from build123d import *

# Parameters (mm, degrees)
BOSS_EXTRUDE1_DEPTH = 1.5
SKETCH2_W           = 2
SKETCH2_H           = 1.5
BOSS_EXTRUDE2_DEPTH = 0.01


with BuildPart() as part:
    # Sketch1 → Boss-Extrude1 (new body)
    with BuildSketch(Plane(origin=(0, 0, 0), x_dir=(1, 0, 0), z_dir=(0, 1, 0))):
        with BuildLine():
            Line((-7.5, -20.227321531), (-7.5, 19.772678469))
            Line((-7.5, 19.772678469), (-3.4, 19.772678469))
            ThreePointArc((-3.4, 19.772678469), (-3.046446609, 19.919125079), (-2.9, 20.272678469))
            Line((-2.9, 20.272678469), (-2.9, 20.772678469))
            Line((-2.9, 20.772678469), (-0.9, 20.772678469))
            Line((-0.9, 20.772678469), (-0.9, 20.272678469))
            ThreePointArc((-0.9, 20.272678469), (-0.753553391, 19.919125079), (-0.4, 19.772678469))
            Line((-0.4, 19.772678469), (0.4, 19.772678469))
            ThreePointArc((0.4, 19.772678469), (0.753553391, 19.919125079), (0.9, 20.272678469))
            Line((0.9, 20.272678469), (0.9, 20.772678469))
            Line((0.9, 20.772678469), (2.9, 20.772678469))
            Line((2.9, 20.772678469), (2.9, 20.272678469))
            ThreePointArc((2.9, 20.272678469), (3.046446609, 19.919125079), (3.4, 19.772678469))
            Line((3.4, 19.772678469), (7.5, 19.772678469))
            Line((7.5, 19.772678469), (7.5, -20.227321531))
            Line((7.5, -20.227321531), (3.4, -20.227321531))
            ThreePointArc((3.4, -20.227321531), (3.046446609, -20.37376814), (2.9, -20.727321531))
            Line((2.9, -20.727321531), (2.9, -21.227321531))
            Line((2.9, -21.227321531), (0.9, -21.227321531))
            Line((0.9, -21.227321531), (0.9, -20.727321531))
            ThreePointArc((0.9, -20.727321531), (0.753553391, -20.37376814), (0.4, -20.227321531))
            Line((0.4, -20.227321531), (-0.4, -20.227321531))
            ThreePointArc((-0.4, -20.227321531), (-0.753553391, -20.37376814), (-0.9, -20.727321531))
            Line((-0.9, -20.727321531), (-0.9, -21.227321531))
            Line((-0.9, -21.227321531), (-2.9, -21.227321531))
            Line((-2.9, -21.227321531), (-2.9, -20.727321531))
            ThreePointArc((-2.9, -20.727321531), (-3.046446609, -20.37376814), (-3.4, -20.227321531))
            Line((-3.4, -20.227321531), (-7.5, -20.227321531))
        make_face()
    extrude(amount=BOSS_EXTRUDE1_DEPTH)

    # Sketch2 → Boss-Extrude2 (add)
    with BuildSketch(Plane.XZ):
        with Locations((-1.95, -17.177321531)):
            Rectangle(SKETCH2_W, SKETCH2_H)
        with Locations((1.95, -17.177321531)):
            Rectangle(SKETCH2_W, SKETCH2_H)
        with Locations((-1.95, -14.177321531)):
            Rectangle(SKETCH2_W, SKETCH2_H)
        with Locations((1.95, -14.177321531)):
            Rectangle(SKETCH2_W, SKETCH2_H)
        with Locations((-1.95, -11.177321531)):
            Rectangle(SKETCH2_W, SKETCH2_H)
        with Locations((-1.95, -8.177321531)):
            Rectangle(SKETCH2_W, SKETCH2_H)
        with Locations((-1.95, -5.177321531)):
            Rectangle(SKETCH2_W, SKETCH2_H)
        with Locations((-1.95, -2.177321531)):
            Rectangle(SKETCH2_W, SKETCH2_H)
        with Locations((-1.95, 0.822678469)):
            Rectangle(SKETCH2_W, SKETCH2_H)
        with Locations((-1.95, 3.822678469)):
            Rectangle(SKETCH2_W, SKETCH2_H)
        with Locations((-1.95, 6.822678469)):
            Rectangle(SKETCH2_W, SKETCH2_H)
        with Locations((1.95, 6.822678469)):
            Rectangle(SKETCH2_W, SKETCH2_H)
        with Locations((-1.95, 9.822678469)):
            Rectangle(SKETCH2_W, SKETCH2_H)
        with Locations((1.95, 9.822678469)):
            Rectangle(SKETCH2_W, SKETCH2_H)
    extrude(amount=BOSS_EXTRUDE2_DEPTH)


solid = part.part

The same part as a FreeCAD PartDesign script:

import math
import FreeCAD as App
import Part
import Sketcher

doc = App.newDocument("Part")
params = doc.addObject("Spreadsheet::Sheet", "Params")
for row, (alias, value) in enumerate([
    ("sketch1_radius", "0.5 mm"),
    ("sketch1_width", "2 mm"),
    ("sketch1_height", "40 mm"),
    ("sketch1_width2", "4.1 mm"),
    ("sketch1_width3", "0.8 mm"),
    ("pad1_length", "1.5 mm"),
    ("sketch2_width", "2 mm"),
    ("sketch2_height", "1.5 mm"),
    ("pad2_length", "0.01 mm"),
], start=1):
    params.set(f"A{row}", alias)
    params.set(f"B{row}", "=" + value)
    params.setAlias(f"B{row}", alias)

body = doc.addObject("PartDesign::Body", "Body")

# Sketch on XZ plane
sketch1 = body.newObject("Sketcher::SketchObject", "Sketch")
sketch1.AttachmentSupport = (doc.getObject("XZ_Plane"), [""])
sketch1.MapMode = "FlatFace"
sketch1.addGeometry([
    Part.LineSegment(App.Vector(-7.5, -19.772678, 0), App.Vector(-7.5, 20.227322, 0)),  # 0
    Part.LineSegment(App.Vector(-7.5, 20.227322, 0), App.Vector(-3.4, 20.227322, 0)),  # 1
    Part.ArcOfCircle(Part.Circle(App.Vector(-3.4, 20.727322, 0), App.Vector(0, 0, 1), 0.5), math.radians(-90), math.radians(0)),  # 2
    Part.LineSegment(App.Vector(-2.9, 20.727322, 0), App.Vector(-2.9, 21.227322, 0)),  # 3
    Part.LineSegment(App.Vector(-2.9, 21.227322, 0), App.Vector(-0.9, 21.227322, 0)),  # 4
    Part.LineSegment(App.Vector(-0.9, 21.227322, 0), App.Vector(-0.9, 20.727322, 0)),  # 5
    Part.ArcOfCircle(Part.Circle(App.Vector(-0.4, 20.727322, 0), App.Vector(0, 0, 1), 0.5), math.radians(180), math.radians(270)),  # 6
    Part.LineSegment(App.Vector(-0.4, 20.227322, 0), App.Vector(0.4, 20.227322, 0)),  # 7
    Part.ArcOfCircle(Part.Circle(App.Vector(0.4, 20.727322, 0), App.Vector(0, 0, 1), 0.5), math.radians(-90), math.radians(0)),  # 8
    Part.LineSegment(App.Vector(0.9, 20.727322, 0), App.Vector(0.9, 21.227322, 0)),  # 9
    Part.LineSegment(App.Vector(0.9, 21.227322, 0), App.Vector(2.9, 21.227322, 0)),  # 10
    Part.LineSegment(App.Vector(2.9, 21.227322, 0), App.Vector(2.9, 20.727322, 0)),  # 11
    Part.ArcOfCircle(Part.Circle(App.Vector(3.4, 20.727322, 0), App.Vector(0, 0, 1), 0.5), math.radians(180), math.radians(270)),  # 12
    Part.LineSegment(App.Vector(3.4, 20.227322, 0), App.Vector(7.5, 20.227322, 0)),  # 13
    Part.LineSegment(App.Vector(7.5, 20.227322, 0), App.Vector(7.5, -19.772678, 0)),  # 14
    Part.LineSegment(App.Vector(7.5, -19.772678, 0), App.Vector(3.4, -19.772678, 0)),  # 15
    Part.ArcOfCircle(Part.Circle(App.Vector(3.4, -20.272678, 0), App.Vector(0, 0, 1), 0.5), math.radians(90), math.radians(180)),  # 16
    Part.LineSegment(App.Vector(2.9, -20.272678, 0), App.Vector(2.9, -20.772678, 0)),  # 17
    Part.LineSegment(App.Vector(2.9, -20.772678, 0), App.Vector(0.9, -20.772678, 0)),  # 18
    Part.LineSegment(App.Vector(0.9, -20.772678, 0), App.Vector(0.9, -20.272678, 0)),  # 19
    Part.ArcOfCircle(Part.Circle(App.Vector(0.4, -20.272678, 0), App.Vector(0, 0, 1), 0.5), math.radians(0), math.radians(90)),  # 20
    Part.LineSegment(App.Vector(0.4, -19.772678, 0), App.Vector(-0.4, -19.772678, 0)),  # 21
    Part.ArcOfCircle(Part.Circle(App.Vector(-0.4, -20.272678, 0), App.Vector(0, 0, 1), 0.5), math.radians(90), math.radians(180)),  # 22
    Part.LineSegment(App.Vector(-0.9, -20.272678, 0), App.Vector(-0.9, -20.772678, 0)),  # 23
    Part.LineSegment(App.Vector(-0.9, -20.772678, 0), App.Vector(-2.9, -20.772678, 0)),  # 24
    Part.LineSegment(App.Vector(-2.9, -20.772678, 0), App.Vector(-2.9, -20.272678, 0)),  # 25
    Part.ArcOfCircle(Part.Circle(App.Vector(-3.4, -20.272678, 0), App.Vector(0, 0, 1), 0.5), math.radians(0), math.radians(90)),  # 26
    Part.LineSegment(App.Vector(-3.4, -19.772678, 0), App.Vector(-7.5, -19.772678, 0)),  # 27
], False)
sketch1.addConstraint([
    Sketcher.Constraint("Coincident", 0, 2, 1, 1),
    Sketcher.Constraint("Tangent", 1, 2, 2, 1),
    Sketcher.Constraint("Tangent", 2, 2, 3, 1),
    Sketcher.Constraint("Coincident", 3, 2, 4, 1),
    Sketcher.Constraint("Coincident", 4, 2, 5, 1),
    Sketcher.Constraint("Tangent", 5, 2, 6, 1),
    Sketcher.Constraint("Tangent", 6, 2, 7, 1),
    Sketcher.Constraint("Tangent", 7, 2, 8, 1),
    Sketcher.Constraint("Tangent", 8, 2, 9, 1),
    Sketcher.Constraint("Coincident", 9, 2, 10, 1),
    Sketcher.Constraint("Coincident", 10, 2, 11, 1),
    Sketcher.Constraint("Tangent", 11, 2, 12, 1),
    Sketcher.Constraint("Tangent", 12, 2, 13, 1),
    Sketcher.Constraint("Coincident", 13, 2, 14, 1),
    Sketcher.Constraint("Coincident", 14, 2, 15, 1),
    Sketcher.Constraint("Tangent", 15, 2, 16, 1),
    Sketcher.Constraint("Tangent", 16, 2, 17, 1),
    Sketcher.Constraint("Coincident", 17, 2, 18, 1),
    Sketcher.Constraint("Coincident", 18, 2, 19, 1),
    Sketcher.Constraint("Tangent", 19, 2, 20, 1),
    Sketcher.Constraint("Tangent", 20, 2, 21, 1),
    Sketcher.Constraint("Tangent", 21, 2, 22, 1),
    Sketcher.Constraint("Tangent", 22, 2, 23, 1),
    Sketcher.Constraint("Coincident", 23, 2, 24, 1),
    Sketcher.Constraint("Coincident", 24, 2, 25, 1),
    Sketcher.Constraint("Tangent", 25, 2, 26, 1),
    Sketcher.Constraint("Tangent", 26, 2, 27, 1),
    Sketcher.Constraint("Coincident", 27, 2, 0, 1),
    Sketcher.Constraint("Vertical", 0),
    Sketcher.Constraint("Horizontal", 1),
    Sketcher.Constraint("Vertical", 3),
    Sketcher.Constraint("Horizontal", 4),
    Sketcher.Constraint("Vertical", 5),
    Sketcher.Constraint("Horizontal", 7),
    Sketcher.Constraint("Vertical", 9),
    Sketcher.Constraint("Horizontal", 10),
    Sketcher.Constraint("Vertical", 11),
    Sketcher.Constraint("Horizontal", 13),
    Sketcher.Constraint("Vertical", 14),
    Sketcher.Constraint("Horizontal", 15),
    Sketcher.Constraint("Vertical", 17),
    Sketcher.Constraint("Horizontal", 18),
    Sketcher.Constraint("Vertical", 19),
    Sketcher.Constraint("Horizontal", 21),
    Sketcher.Constraint("Vertical", 23),
    Sketcher.Constraint("Horizontal", 24),
    Sketcher.Constraint("Vertical", 25),
    Sketcher.Constraint("Horizontal", 27),
    Sketcher.Constraint("Equal", 2, 6),
    Sketcher.Constraint("Equal", 6, 8),
    Sketcher.Constraint("Equal", 8, 12),
    Sketcher.Constraint("Equal", 12, 16),
    Sketcher.Constraint("Equal", 16, 20),
    Sketcher.Constraint("Equal", 20, 22),
    Sketcher.Constraint("Equal", 22, 26),
    Sketcher.Constraint("Symmetric", 2, 3, 12, 3, -2),
    Sketcher.Constraint("Symmetric", 16, 3, 26, 3, -2),
    Sketcher.Constraint("Symmetric", 4, 2, 9, 2, -2),
    Sketcher.Constraint("Symmetric", 18, 2, 23, 2, -2),
    Sketcher.Constraint("Horizontal", 2, 3, 6, 3),
    Sketcher.Constraint("Horizontal", 16, 3, 20, 3),
    Sketcher.Constraint("Vertical", 12, 3, 16, 3),
    Sketcher.Constraint("Vertical", 8, 3, 20, 3),
    Sketcher.Constraint("Equal", 1, 13),
    Sketcher.Constraint("Equal", 11, 17),
    Sketcher.Constraint("Radius", 2, 0.5),
    Sketcher.Constraint("DistanceX", 4, 1, 4, 2, 2.0),
    Sketcher.Constraint("DistanceY", 0, 1, 0, 2, 40.0),
    Sketcher.Constraint("DistanceX", 1, 1, 1, 2, 4.1),
    Sketcher.Constraint("DistanceX", 7, 1, 7, 2, 0.8),
    Sketcher.Constraint("DistanceY", 3, 1, 3, 2, 0.5),
    Sketcher.Constraint("DistanceY", -1, 1, 2, 3, 20.727322),
])
sketch1.setExpression("Constraints[65]", "Params.sketch1_radius")
sketch1.setExpression("Constraints[66]", "Params.sketch1_width")
sketch1.setExpression("Constraints[67]", "Params.sketch1_height")
sketch1.setExpression("Constraints[68]", "Params.sketch1_width2")
sketch1.setExpression("Constraints[69]", "Params.sketch1_width3")
pad1 = body.newObject("PartDesign::Pad", "Pad")
pad1.Profile = sketch1
pad1.setExpression("Length", "Params.pad1_length")
pad1.Reversed = True

# Sketch on XZ plane
sketch2 = body.newObject("Sketcher::SketchObject", "Sketch001")
sketch2.AttachmentSupport = (doc.getObject("XZ_Plane"), [""])
sketch2.MapMode = "FlatFace"
sketch2.addGeometry([
    Part.LineSegment(App.Vector(-2.95, -16.427322, 0), App.Vector(-2.95, -17.927322, 0)),  # 0
    Part.LineSegment(App.Vector(-2.95, -17.927322, 0), App.Vector(-0.95, -17.927322, 0)),  # 1
    Part.LineSegment(App.Vector(-0.95, -17.927322, 0), App.Vector(-0.95, -16.427322, 0)),  # 2
    Part.LineSegment(App.Vector(-0.95, -16.427322, 0), App.Vector(-2.95, -16.427322, 0)),  # 3
    Part.LineSegment(App.Vector(0.95, -16.427322, 0), App.Vector(0.95, -17.927322, 0)),  # 4
    Part.LineSegment(App.Vector(0.95, -17.927322, 0), App.Vector(2.95, -17.927322, 0)),  # 5
    Part.LineSegment(App.Vector(2.95, -17.927322, 0), App.Vector(2.95, -16.427322, 0)),  # 6
    Part.LineSegment(App.Vector(2.95, -16.427322, 0), App.Vector(0.95, -16.427322, 0)),  # 7
    Part.LineSegment(App.Vector(-2.95, -13.427322, 0), App.Vector(-2.95, -14.927322, 0)),  # 8
    Part.LineSegment(App.Vector(-2.95, -14.927322, 0), App.Vector(-0.95, -14.927322, 0)),  # 9
    Part.LineSegment(App.Vector(-0.95, -14.927322, 0), App.Vector(-0.95, -13.427322, 0)),  # 10
    Part.LineSegment(App.Vector(-0.95, -13.427322, 0), App.Vector(-2.95, -13.427322, 0)),  # 11
    Part.LineSegment(App.Vector(0.95, -13.427322, 0), App.Vector(0.95, -14.927322, 0)),  # 12
    Part.LineSegment(App.Vector(0.95, -14.927322, 0), App.Vector(2.95, -14.927322, 0)),  # 13
    Part.LineSegment(App.Vector(2.95, -14.927322, 0), App.Vector(2.95, -13.427322, 0)),  # 14
    Part.LineSegment(App.Vector(2.95, -13.427322, 0), App.Vector(0.95, -13.427322, 0)),  # 15
    Part.LineSegment(App.Vector(-2.95, -10.427322, 0), App.Vector(-2.95, -11.927322, 0)),  # 16
    Part.LineSegment(App.Vector(-2.95, -11.927322, 0), App.Vector(-0.95, -11.927322, 0)),  # 17
    Part.LineSegment(App.Vector(-0.95, -11.927322, 0), App.Vector(-0.95, -10.427322, 0)),  # 18
    Part.LineSegment(App.Vector(-0.95, -10.427322, 0), App.Vector(-2.95, -10.427322, 0)),  # 19
    Part.LineSegment(App.Vector(-2.95, -7.427322, 0), App.Vector(-2.95, -8.927322, 0)),  # 20
    Part.LineSegment(App.Vector(-2.95, -8.927322, 0), App.Vector(-0.95, -8.927322, 0)),  # 21
    Part.LineSegment(App.Vector(-0.95, -8.927322, 0), App.Vector(-0.95, -7.427322, 0)),  # 22
    Part.LineSegment(App.Vector(-0.95, -7.427322, 0), App.Vector(-2.95, -7.427322, 0)),  # 23
    Part.LineSegment(App.Vector(-2.95, -4.427322, 0), App.Vector(-2.95, -5.927322, 0)),  # 24
    Part.LineSegment(App.Vector(-2.95, -5.927322, 0), App.Vector(-0.95, -5.927322, 0)),  # 25
    Part.LineSegment(App.Vector(-0.95, -5.927322, 0), App.Vector(-0.95, -4.427322, 0)),  # 26
    Part.LineSegment(App.Vector(-0.95, -4.427322, 0), App.Vector(-2.95, -4.427322, 0)),  # 27
    Part.LineSegment(App.Vector(-2.95, -1.427322, 0), App.Vector(-2.95, -2.927322, 0)),  # 28
    Part.LineSegment(App.Vector(-2.95, -2.927322, 0), App.Vector(-0.95, -2.927322, 0)),  # 29
    Part.LineSegment(App.Vector(-0.95, -2.927322, 0), App.Vector(-0.95, -1.427322, 0)),  # 30
    Part.LineSegment(App.Vector(-0.95, -1.427322, 0), App.Vector(-2.95, -1.427322, 0)),  # 31
    Part.LineSegment(App.Vector(-2.95, 1.572678, 0), App.Vector(-2.95, 0.072678, 0)),  # 32
    Part.LineSegment(App.Vector(-2.95, 0.072678, 0), App.Vector(-0.95, 0.072678, 0)),  # 33
    Part.LineSegment(App.Vector(-0.95, 0.072678, 0), App.Vector(-0.95, 1.572678, 0)),  # 34
    Part.LineSegment(App.Vector(-0.95, 1.572678, 0), App.Vector(-2.95, 1.572678, 0)),  # 35
    Part.LineSegment(App.Vector(-2.95, 4.572678, 0), App.Vector(-2.95, 3.072678, 0)),  # 36
    Part.LineSegment(App.Vector(-2.95, 3.072678, 0), App.Vector(-0.95, 3.072678, 0)),  # 37
    Part.LineSegment(App.Vector(-0.95, 3.072678, 0), App.Vector(-0.95, 4.572678, 0)),  # 38
    Part.LineSegment(App.Vector(-0.95, 4.572678, 0), App.Vector(-2.95, 4.572678, 0)),  # 39
    Part.LineSegment(App.Vector(-2.95, 7.572678, 0), App.Vector(-2.95, 6.072678, 0)),  # 40
    Part.LineSegment(App.Vector(-2.95, 6.072678, 0), App.Vector(-0.95, 6.072678, 0)),  # 41
    Part.LineSegment(App.Vector(-0.95, 6.072678, 0), App.Vector(-0.95, 7.572678, 0)),  # 42
    Part.LineSegment(App.Vector(-0.95, 7.572678, 0), App.Vector(-2.95, 7.572678, 0)),  # 43
    Part.LineSegment(App.Vector(0.95, 7.572678, 0), App.Vector(0.95, 6.072678, 0)),  # 44
    Part.LineSegment(App.Vector(0.95, 6.072678, 0), App.Vector(2.95, 6.072678, 0)),  # 45
    Part.LineSegment(App.Vector(2.95, 6.072678, 0), App.Vector(2.95, 7.572678, 0)),  # 46
    Part.LineSegment(App.Vector(2.95, 7.572678, 0), App.Vector(0.95, 7.572678, 0)),  # 47
    Part.LineSegment(App.Vector(-2.95, 10.572678, 0), App.Vector(-2.95, 9.072678, 0)),  # 48
    Part.LineSegment(App.Vector(-2.95, 9.072678, 0), App.Vector(-0.95, 9.072678, 0)),  # 49
    Part.LineSegment(App.Vector(-0.95, 9.072678, 0), App.Vector(-0.95, 10.572678, 0)),  # 50
    Part.LineSegment(App.Vector(-0.95, 10.572678, 0), App.Vector(-2.95, 10.572678, 0)),  # 51
    Part.LineSegment(App.Vector(0.95, 10.572678, 0), App.Vector(0.95, 9.072678, 0)),  # 52
    Part.LineSegment(App.Vector(0.95, 9.072678, 0), App.Vector(2.95, 9.072678, 0)),  # 53
    Part.LineSegment(App.Vector(2.95, 9.072678, 0), App.Vector(2.95, 10.572678, 0)),  # 54
    Part.LineSegment(App.Vector(2.95, 10.572678, 0), App.Vector(0.95, 10.572678, 0)),  # 55
], False)
sketch2.addConstraint([
    Sketcher.Constraint("Coincident", 0, 2, 1, 1),
    Sketcher.Constraint("Coincident", 1, 2, 2, 1),
    Sketcher.Constraint("Coincident", 2, 2, 3, 1),
    Sketcher.Constraint("Coincident", 3, 2, 0, 1),
    Sketcher.Constraint("Coincident", 4, 2, 5, 1),
    Sketcher.Constraint("Coincident", 5, 2, 6, 1),
    Sketcher.Constraint("Coincident", 6, 2, 7, 1),
    Sketcher.Constraint("Coincident", 7, 2, 4, 1),
    Sketcher.Constraint("Coincident", 8, 2, 9, 1),
    Sketcher.Constraint("Coincident", 9, 2, 10, 1),
    Sketcher.Constraint("Coincident", 10, 2, 11, 1),
    Sketcher.Constraint("Coincident", 11, 2, 8, 1),
    Sketcher.Constraint("Coincident", 12, 2, 13, 1),
    Sketcher.Constraint("Coincident", 13, 2, 14, 1),
    Sketcher.Constraint("Coincident", 14, 2, 15, 1),
    Sketcher.Constraint("Coincident", 15, 2, 12, 1),
    Sketcher.Constraint("Coincident", 16, 2, 17, 1),
    Sketcher.Constraint("Coincident", 17, 2, 18, 1),
    Sketcher.Constraint("Coincident", 18, 2, 19, 1),
    Sketcher.Constraint("Coincident", 19, 2, 16, 1),
    Sketcher.Constraint("Coincident", 20, 2, 21, 1),
    Sketcher.Constraint("Coincident", 21, 2, 22, 1),
    Sketcher.Constraint("Coincident", 22, 2, 23, 1),
    Sketcher.Constraint("Coincident", 23, 2, 20, 1),
    Sketcher.Constraint("Coincident", 24, 2, 25, 1),
    Sketcher.Constraint("Coincident", 25, 2, 26, 1),
    Sketcher.Constraint("Coincident", 26, 2, 27, 1),
    Sketcher.Constraint("Coincident", 27, 2, 24, 1),
    Sketcher.Constraint("Coincident", 28, 2, 29, 1),
    Sketcher.Constraint("Coincident", 29, 2, 30, 1),
    Sketcher.Constraint("Coincident", 30, 2, 31, 1),
    Sketcher.Constraint("Coincident", 31, 2, 28, 1),
    Sketcher.Constraint("Coincident", 32, 2, 33, 1),
    Sketcher.Constraint("Coincident", 33, 2, 34, 1),
    Sketcher.Constraint("Coincident", 34, 2, 35, 1),
    Sketcher.Constraint("Coincident", 35, 2, 32, 1),
    Sketcher.Constraint("Coincident", 36, 2, 37, 1),
    Sketcher.Constraint("Coincident", 37, 2, 38, 1),
    Sketcher.Constraint("Coincident", 38, 2, 39, 1),
    Sketcher.Constraint("Coincident", 39, 2, 36, 1),
    Sketcher.Constraint("Coincident", 40, 2, 41, 1),
    Sketcher.Constraint("Coincident", 41, 2, 42, 1),
    Sketcher.Constraint("Coincident", 42, 2, 43, 1),
    Sketcher.Constraint("Coincident", 43, 2, 40, 1),
    Sketcher.Constraint("Coincident", 44, 2, 45, 1),
    Sketcher.Constraint("Coincident", 45, 2, 46, 1),
    Sketcher.Constraint("Coincident", 46, 2, 47, 1),
    Sketcher.Constraint("Coincident", 47, 2, 44, 1),
    Sketcher.Constraint("Coincident", 48, 2, 49, 1),
    Sketcher.Constraint("Coincident", 49, 2, 50, 1),
    Sketcher.Constraint("Coincident", 50, 2, 51, 1),
    Sketcher.Constraint("Coincident", 51, 2, 48, 1),
    Sketcher.Constraint("Coincident", 52, 2, 53, 1),
    Sketcher.Constraint("Coincident", 53, 2, 54, 1),
    Sketcher.Constraint("Coincident", 54, 2, 55, 1),
    Sketcher.Constraint("Coincident", 55, 2, 52, 1),
    Sketcher.Constraint("Vertical", 0),
    Sketcher.Constraint("Horizontal", 1),
    Sketcher.Constraint("Vertical", 2),
    Sketcher.Constraint("Horizontal", 3),
    Sketcher.Constraint("Vertical", 4),
    Sketcher.Constraint("Horizontal", 5),
    Sketcher.Constraint("Vertical", 6),
    Sketcher.Constraint("Horizontal", 7),
    Sketcher.Constraint("Vertical", 8),
    Sketcher.Constraint("Horizontal", 9),
    Sketcher.Constraint("Vertical", 10),
    Sketcher.Constraint("Horizontal", 11),
    Sketcher.Constraint("Vertical", 12),
    Sketcher.Constraint("Horizontal", 13),
    Sketcher.Constraint("Vertical", 14),
    Sketcher.Constraint("Horizontal", 15),
    Sketcher.Constraint("Vertical", 16),
    Sketcher.Constraint("Horizontal", 17),
    Sketcher.Constraint("Vertical", 18),
    Sketcher.Constraint("Horizontal", 19),
    Sketcher.Constraint("Vertical", 20),
    Sketcher.Constraint("Horizontal", 21),
    Sketcher.Constraint("Vertical", 22),
    Sketcher.Constraint("Horizontal", 23),
    Sketcher.Constraint("Vertical", 24),
    Sketcher.Constraint("Horizontal", 25),
    Sketcher.Constraint("Vertical", 26),
    Sketcher.Constraint("Horizontal", 27),
    Sketcher.Constraint("Vertical", 28),
    Sketcher.Constraint("Horizontal", 29),
    Sketcher.Constraint("Vertical", 30),
    Sketcher.Constraint("Horizontal", 31),
    Sketcher.Constraint("Vertical", 32),
    Sketcher.Constraint("Horizontal", 33),
    Sketcher.Constraint("Vertical", 34),
    Sketcher.Constraint("Horizontal", 35),
    Sketcher.Constraint("Vertical", 36),
    Sketcher.Constraint("Horizontal", 37),
    Sketcher.Constraint("Vertical", 38),
    Sketcher.Constraint("Horizontal", 39),
    Sketcher.Constraint("Vertical", 40),
    Sketcher.Constraint("Horizontal", 41),
    Sketcher.Constraint("Vertical", 42),
    Sketcher.Constraint("Horizontal", 43),
    Sketcher.Constraint("Vertical", 44),
    Sketcher.Constraint("Horizontal", 45),
    Sketcher.Constraint("Vertical", 46),
    Sketcher.Constraint("Horizontal", 47),
    Sketcher.Constraint("Vertical", 48),
    Sketcher.Constraint("Horizontal", 49),
    Sketcher.Constraint("Vertical", 50),
    Sketcher.Constraint("Horizontal", 51),
    Sketcher.Constraint("Vertical", 52),
    Sketcher.Constraint("Horizontal", 53),
    Sketcher.Constraint("Vertical", 54),
    Sketcher.Constraint("Horizontal", 55),
    Sketcher.Constraint("Symmetric", 1, 2, 4, 2, -2),
    Sketcher.Constraint("Symmetric", 3, 2, 6, 2, -2),
    Sketcher.Constraint("Symmetric", 9, 2, 12, 2, -2),
    Sketcher.Constraint("Symmetric", 11, 2, 14, 2, -2),
    Sketcher.Constraint("Symmetric", 41, 2, 44, 2, -2),
    Sketcher.Constraint("Symmetric", 43, 2, 46, 2, -2),
    Sketcher.Constraint("Symmetric", 49, 2, 52, 2, -2),
    Sketcher.Constraint("Symmetric", 51, 2, 54, 2, -2),
    Sketcher.Constraint("Vertical", 3, 2, 8, 2),
    Sketcher.Constraint("Vertical", 2, 2, 9, 2),
    Sketcher.Constraint("Vertical", 11, 2, 16, 2),
    Sketcher.Constraint("Vertical", 10, 2, 17, 2),
    Sketcher.Constraint("Vertical", 19, 2, 20, 2),
    Sketcher.Constraint("Vertical", 18, 2, 21, 2),
    Sketcher.Constraint("Vertical", 23, 2, 24, 2),
    Sketcher.Constraint("Vertical", 22, 2, 25, 2),
    Sketcher.Constraint("Vertical", 27, 2, 28, 2),
    Sketcher.Constraint("Vertical", 26, 2, 29, 2),
    Sketcher.Constraint("Vertical", 31, 2, 32, 2),
    Sketcher.Constraint("Vertical", 30, 2, 33, 2),
    Sketcher.Constraint("Vertical", 35, 2, 36, 2),
    Sketcher.Constraint("Vertical", 34, 2, 37, 2),
    Sketcher.Constraint("Vertical", 39, 2, 40, 2),
    Sketcher.Constraint("Vertical", 38, 2, 41, 2),
    Sketcher.Constraint("Vertical", 43, 2, 48, 2),
    Sketcher.Constraint("Vertical", 42, 2, 49, 2),
    Sketcher.Constraint("Equal", 6, 8),
    Sketcher.Constraint("Equal", 14, 16),
    Sketcher.Constraint("Equal", 18, 20),
    Sketcher.Constraint("Equal", 22, 24),
    Sketcher.Constraint("Equal", 26, 28),
    Sketcher.Constraint("Equal", 30, 32),
    Sketcher.Constraint("Equal", 34, 36),
    Sketcher.Constraint("Equal", 38, 40),
    Sketcher.Constraint("Equal", 46, 48),
    Sketcher.Constraint("DistanceX", 1, 1, 1, 2, 2.0),
    Sketcher.Constraint("DistanceY", 0, 2, 0, 1, 1.5),
    Sketcher.Constraint("DistanceY", 0, 2, 8, 2, 3.0),
    Sketcher.Constraint("DistanceY", 8, 2, 16, 2, 3.0),
    Sketcher.Constraint("DistanceY", 16, 2, 20, 2, 3.0),
    Sketcher.Constraint("DistanceY", 20, 2, 24, 2, 3.0),
    Sketcher.Constraint("DistanceY", 24, 2, 28, 2, 3.0),
    Sketcher.Constraint("DistanceY", 28, 2, 32, 2, 3.0),
    Sketcher.Constraint("DistanceY", 32, 2, 36, 2, 3.0),
    Sketcher.Constraint("DistanceY", 36, 2, 40, 2, 3.0),
    Sketcher.Constraint("DistanceY", 40, 2, 48, 2, 3.0),
    Sketcher.Constraint("DistanceX", 1, 2, 4, 2, 1.9),
    Sketcher.Constraint("DistanceY", 0, 2, -1, 1, 17.927322),
])
sketch2.setExpression("Constraints[147]", "Params.sketch2_width")
sketch2.setExpression("Constraints[148]", "Params.sketch2_height")
pad2 = body.newObject("PartDesign::Pad", "Pad001")
pad2.Profile = sketch2
pad2.setExpression("Length", "Params.pad2_length")

doc.recompute()
